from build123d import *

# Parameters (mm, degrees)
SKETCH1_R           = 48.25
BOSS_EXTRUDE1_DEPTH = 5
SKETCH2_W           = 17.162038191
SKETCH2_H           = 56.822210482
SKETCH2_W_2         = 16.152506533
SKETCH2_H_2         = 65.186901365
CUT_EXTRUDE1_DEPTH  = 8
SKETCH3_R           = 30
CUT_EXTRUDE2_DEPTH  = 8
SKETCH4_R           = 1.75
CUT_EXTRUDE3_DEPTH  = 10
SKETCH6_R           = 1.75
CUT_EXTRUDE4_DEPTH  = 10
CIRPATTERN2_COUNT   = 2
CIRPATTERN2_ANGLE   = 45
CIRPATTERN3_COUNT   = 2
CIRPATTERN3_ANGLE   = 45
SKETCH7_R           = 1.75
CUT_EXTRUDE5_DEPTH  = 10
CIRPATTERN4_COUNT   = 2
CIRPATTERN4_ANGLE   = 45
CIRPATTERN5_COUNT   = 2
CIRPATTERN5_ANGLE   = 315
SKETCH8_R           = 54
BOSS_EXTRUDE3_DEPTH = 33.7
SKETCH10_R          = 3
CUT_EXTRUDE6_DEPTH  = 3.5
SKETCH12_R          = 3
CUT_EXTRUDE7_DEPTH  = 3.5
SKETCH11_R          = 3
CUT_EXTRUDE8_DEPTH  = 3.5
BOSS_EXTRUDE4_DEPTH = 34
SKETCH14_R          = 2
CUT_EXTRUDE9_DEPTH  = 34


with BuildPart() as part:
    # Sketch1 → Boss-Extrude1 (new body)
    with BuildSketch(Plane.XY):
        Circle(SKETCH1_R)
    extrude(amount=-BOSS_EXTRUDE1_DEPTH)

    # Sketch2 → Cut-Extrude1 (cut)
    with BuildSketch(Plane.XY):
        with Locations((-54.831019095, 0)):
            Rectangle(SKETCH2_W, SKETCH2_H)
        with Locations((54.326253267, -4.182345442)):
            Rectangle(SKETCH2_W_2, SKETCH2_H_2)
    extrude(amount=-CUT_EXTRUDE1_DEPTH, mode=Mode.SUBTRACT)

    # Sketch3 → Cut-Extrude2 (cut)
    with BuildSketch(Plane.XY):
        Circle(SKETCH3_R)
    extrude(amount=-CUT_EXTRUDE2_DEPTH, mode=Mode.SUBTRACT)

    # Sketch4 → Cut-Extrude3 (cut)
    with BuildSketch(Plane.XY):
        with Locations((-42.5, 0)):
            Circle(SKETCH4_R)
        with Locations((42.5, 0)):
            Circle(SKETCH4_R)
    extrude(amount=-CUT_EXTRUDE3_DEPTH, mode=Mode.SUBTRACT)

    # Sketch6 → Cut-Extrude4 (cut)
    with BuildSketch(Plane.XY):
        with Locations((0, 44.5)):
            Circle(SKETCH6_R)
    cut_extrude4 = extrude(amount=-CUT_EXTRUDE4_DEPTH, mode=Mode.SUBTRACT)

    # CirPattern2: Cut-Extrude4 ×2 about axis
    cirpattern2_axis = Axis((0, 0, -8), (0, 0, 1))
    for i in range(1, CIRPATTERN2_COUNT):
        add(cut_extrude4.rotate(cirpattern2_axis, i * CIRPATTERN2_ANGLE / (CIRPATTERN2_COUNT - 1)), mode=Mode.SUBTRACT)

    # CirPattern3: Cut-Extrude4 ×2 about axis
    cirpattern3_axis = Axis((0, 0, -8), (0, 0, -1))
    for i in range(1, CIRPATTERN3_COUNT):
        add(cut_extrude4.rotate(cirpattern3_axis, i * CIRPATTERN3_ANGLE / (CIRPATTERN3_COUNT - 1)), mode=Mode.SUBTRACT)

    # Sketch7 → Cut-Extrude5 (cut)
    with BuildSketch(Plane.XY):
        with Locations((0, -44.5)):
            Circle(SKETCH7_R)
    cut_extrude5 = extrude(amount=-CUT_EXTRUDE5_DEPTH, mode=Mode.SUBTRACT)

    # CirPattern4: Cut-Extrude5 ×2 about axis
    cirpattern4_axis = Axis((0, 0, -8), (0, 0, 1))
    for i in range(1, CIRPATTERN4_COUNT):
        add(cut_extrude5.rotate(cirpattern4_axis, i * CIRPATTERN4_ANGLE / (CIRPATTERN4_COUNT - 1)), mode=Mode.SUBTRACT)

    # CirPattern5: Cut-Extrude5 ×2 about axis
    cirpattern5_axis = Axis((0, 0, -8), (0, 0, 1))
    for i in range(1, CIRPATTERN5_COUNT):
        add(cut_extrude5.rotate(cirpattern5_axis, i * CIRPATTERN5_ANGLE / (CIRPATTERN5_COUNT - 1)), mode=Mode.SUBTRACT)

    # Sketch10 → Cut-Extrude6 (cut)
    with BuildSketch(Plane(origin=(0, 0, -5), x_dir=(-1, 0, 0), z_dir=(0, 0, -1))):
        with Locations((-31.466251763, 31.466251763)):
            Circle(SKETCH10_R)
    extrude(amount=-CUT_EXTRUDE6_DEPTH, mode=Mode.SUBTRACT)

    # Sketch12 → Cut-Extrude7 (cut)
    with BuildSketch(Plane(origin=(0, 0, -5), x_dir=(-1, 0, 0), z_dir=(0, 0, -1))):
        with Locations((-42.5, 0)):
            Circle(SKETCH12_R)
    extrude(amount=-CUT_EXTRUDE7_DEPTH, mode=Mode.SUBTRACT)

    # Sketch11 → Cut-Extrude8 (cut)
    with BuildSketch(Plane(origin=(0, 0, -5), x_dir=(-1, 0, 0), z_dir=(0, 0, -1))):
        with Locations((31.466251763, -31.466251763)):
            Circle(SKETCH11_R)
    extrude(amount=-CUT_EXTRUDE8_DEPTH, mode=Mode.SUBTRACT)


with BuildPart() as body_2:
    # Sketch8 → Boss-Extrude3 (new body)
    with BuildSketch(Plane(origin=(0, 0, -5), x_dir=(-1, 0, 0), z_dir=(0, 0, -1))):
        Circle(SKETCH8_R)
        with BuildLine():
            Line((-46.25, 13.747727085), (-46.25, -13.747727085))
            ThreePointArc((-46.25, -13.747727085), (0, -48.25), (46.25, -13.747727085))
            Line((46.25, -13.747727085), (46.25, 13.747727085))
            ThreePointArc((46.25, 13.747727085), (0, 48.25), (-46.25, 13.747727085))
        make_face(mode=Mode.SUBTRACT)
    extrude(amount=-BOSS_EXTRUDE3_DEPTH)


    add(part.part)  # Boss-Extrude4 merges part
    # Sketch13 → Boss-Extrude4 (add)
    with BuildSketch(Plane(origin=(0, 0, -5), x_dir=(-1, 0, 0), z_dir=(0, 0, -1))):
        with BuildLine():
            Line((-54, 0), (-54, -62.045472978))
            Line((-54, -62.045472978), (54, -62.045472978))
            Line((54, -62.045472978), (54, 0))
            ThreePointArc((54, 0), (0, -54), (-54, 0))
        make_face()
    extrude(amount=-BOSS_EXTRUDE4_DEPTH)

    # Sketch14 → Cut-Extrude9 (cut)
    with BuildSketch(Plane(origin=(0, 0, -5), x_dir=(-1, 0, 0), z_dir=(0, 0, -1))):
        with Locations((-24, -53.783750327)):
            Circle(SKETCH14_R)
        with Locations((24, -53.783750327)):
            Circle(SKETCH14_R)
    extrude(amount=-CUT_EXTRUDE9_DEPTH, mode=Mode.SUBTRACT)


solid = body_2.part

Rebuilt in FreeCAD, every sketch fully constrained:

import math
import FreeCAD as App
import Part
import Sketcher
from FreeCAD import Vector
Q = App.Units.Quantity

doc = App.newDocument("Part")
body = doc.addObject("PartDesign::Body", "Body")

sketch1 = doc.addObject("Sketcher::SketchObject", "Sketch")
body.addObject(sketch1)
sketch1.AttachmentSupport = (doc.XY_Plane, [""])
sketch1.MapMode = "FlatFace"
sketch1.addGeometry(Part.Circle(Vector(0, 0, 0), Vector(0, 0, 1), 48), False)
sketch1.addConstraint(Sketcher.Constraint("Coincident", 0, 3, -1, 1))
sketch1.addConstraint(Sketcher.Constraint("Diameter", 0, Q("96.5 mm")))
pad1 = doc.addObject("PartDesign::Pad", "Pad")
body.addObject(pad1)
pad1.Profile = sketch1
pad1.Length = 5
pad1.Reversed = True

sketch2 = doc.addObject("Sketcher::SketchObject", "Sketch001")
body.addObject(sketch2)
sketch2.AttachmentSupport = (doc.XY_Plane, [""])
sketch2.MapMode = "FlatFace"
sketch2.addGeometry(Part.LineSegment(Vector(-63, 28, 0), Vector(-63, -28, 0)), False)
sketch2.addGeometry(Part.LineSegment(Vector(-63, -28, 0), Vector(-46, -28, 0)), False)
sketch2.addGeometry(Part.LineSegment(Vector(-46, -28, 0), Vector(-46, 28, 0)), False)
sketch2.addGeometry(Part.LineSegment(Vector(-46, 28, 0), Vector(-63, 28, 0)), False)
sketch2.addGeometry(Part.LineSegment(Vector(46, 28, 0), Vector(46, -37, 0)), False)
sketch2.addGeometry(Part.LineSegment(Vector(46, -37, 0), Vector(62, -37, 0)), False)
sketch2.addGeometry(Part.LineSegment(Vector(62, -37, 0), Vector(62, 28, 0)), False)
sketch2.addGeometry(Part.LineSegment(Vector(62, 28, 0), Vector(46, 28, 0)), False)
sketch2.addConstraint(Sketcher.Constraint("Coincident", 0, 2, 1, 1))
sketch2.addConstraint(Sketcher.Constraint("Coincident", 1, 2, 2, 1))
sketch2.addConstraint(Sketcher.Constraint("Coincident", 2, 2, 3, 1))
sketch2.addConstraint(Sketcher.Constraint("Coincident", 3, 2, 0, 1))
sketch2.addConstraint(Sketcher.Constraint("Coincident", 4, 2, 5, 1))
sketch2.addConstraint(Sketcher.Constraint("Coincident", 5, 2, 6, 1))
sketch2.addConstraint(Sketcher.Constraint("Coincident", 6, 2, 7, 1))
sketch2.addConstraint(Sketcher.Constraint("Coincident", 7, 2, 4, 1))
sketch2.addConstraint(Sketcher.Constraint("Vertical", 0))
sketch2.addConstraint(Sketcher.Constraint("Horizontal", 1))
sketch2.addConstraint(Sketcher.Constraint("Vertical", 2))
sketch2.addConstraint(Sketcher.Constraint("Horizontal", 3))
sketch2.addConstraint(Sketcher.Constraint("Vertical", 4))
sketch2.addConstraint(Sketcher.Constraint("Horizontal", 5))
sketch2.addConstraint(Sketcher.Constraint("Vertical", 6))
sketch2.addConstraint(Sketcher.Constraint("Horizontal", 7))
sketch2.addConstraint(Sketcher.Constraint("Symmetric", 1, 2, 7, 2, -1, 1))
sketch2.addConstraint(Sketcher.Constraint("Horizontal", 3, 2, 6, 2))
sketch2.addConstraint(Sketcher.Constraint("DistanceX", 1, 2, 4, 2, Q("92.5 mm")))
sketch2.addConstraint(Sketcher.Constraint("DistanceY", 4, 2, 4, 1, Q("65.186901 mm")))
sketch2.addConstraint(Sketcher.Constraint("DistanceX", 1, 1, 1, 2, Q("17.162038 mm")))
sketch2.addConstraint(Sketcher.Constraint("DistanceY", 0, 2, 0, 1, Q("56.82221 mm")))
sketch2.addConstraint(Sketcher.Constraint("DistanceX", 5, 1, 5, 2, Q("16.152507 mm")))
pocket1 = doc.addObject("PartDesign::Pocket", "Pocket")
body.addObject(pocket1)
pocket1.Profile = sketch2
pocket1.Length = 8

sketch3 = doc.addObject("Sketcher::SketchObject", "Sketch002")
body.addObject(sketch3)
sketch3.AttachmentSupport = (doc.XY_Plane, [""])
sketch3.MapMode = "FlatFace"
sketch3.addGeometry(Part.Circle(Vector(0, 0, 0), Vector(0, 0, 1), 30), False)
sketch3.addConstraint(Sketcher.Constraint("Coincident", 0, 3, -1, 1))
sketch3.addConstraint(Sketcher.Constraint("Diameter", 0, Q("60 mm")))
pocket2 = doc.addObject("PartDesign::Pocket", "Pocket001")
body.addObject(pocket2)
pocket2.Profile = sketch3
pocket2.Length = 8

sketch4 = doc.addObject("Sketcher::SketchObject", "Sketch003")
body.addObject(sketch4)
sketch4.AttachmentSupport = (doc.XY_Plane, [""])
sketch4.MapMode = "FlatFace"
sketch4.addGeometry(Part.Circle(Vector(-42.5, 0, 0), Vector(0, 0, 1), 1.8), False)
sketch4.addGeometry(Part.Circle(Vector(42.5, 0, 0), Vector(0, 0, 1), 1.8), False)
sketch4.addConstraint(Sketcher.Constraint("Equal", 0, 1))
sketch4.addConstraint(Sketcher.Constraint("Symmetric", 0, 3, 1, 3, -1, 1))
sketch4.addConstraint(Sketcher.Constraint("PointOnObject", 0, 3, -1))
sketch4.addConstraint(Sketcher.Constraint("Diameter", 0, Q("3.5 mm")))
sketch4.addConstraint(Sketcher.Constraint("DistanceX", 0, 3, 1, 3, Q("85 mm")))
pocket3 = doc.addObject("PartDesign::Pocket", "Pocket002")
body.addObject(pocket3)
pocket3.Profile = sketch4
pocket3.Length = 10

sketch5 = doc.addObject("Sketcher::SketchObject", "Sketch004")
body.addObject(sketch5)
sketch5.AttachmentSupport = (doc.XY_Plane, [""])
sketch5.MapMode = "FlatFace"
sketch5.addGeometry(Part.Circle(Vector(0, 44.5, 0), Vector(0, 0, 1), 1.8), False)
sketch5.addConstraint(Sketcher.Constraint("PointOnObject", 0, 3, -2))
sketch5.addConstraint(Sketcher.Constraint("Diameter", 0, Q("3.5 mm")))
sketch5.addConstraint(Sketcher.Constraint("DistanceY", -1, 1, 0, 3, Q("44.5 mm")))
pocket4 = doc.addObject("PartDesign::Pocket", "Pocket003")
body.addObject(pocket4)
pocket4.Profile = sketch5
pocket4.Length = 10
doc.recompute()

polarpattern = doc.addObject("PartDesign::PolarPattern", "PolarPattern")
body.addObject(polarpattern)
polarpattern.Originals = [pocket4]
polarpattern.Axis = (doc.Z_Axis, [""])
polarpattern.Angle = 45
polarpattern.Occurrences = 2
body.Tip = polarpattern
doc.recompute()

polarpattern2 = doc.addObject("PartDesign::PolarPattern", "PolarPattern001")
body.addObject(polarpattern2)
polarpattern2.Originals = [pocket4]
polarpattern2.Axis = (doc.Z_Axis, [""])
polarpattern2.Angle = 45
polarpattern2.Occurrences = 2
polarpattern2.Reversed = True
body.Tip = polarpattern2

sketch6 = doc.addObject("Sketcher::SketchObject", "Sketch005")
body.addObject(sketch6)
sketch6.AttachmentSupport = (doc.XY_Plane, [""])
sketch6.MapMode = "FlatFace"
sketch6.addGeometry(Part.Circle(Vector(0, -44.5, 0), Vector(0, 0, 1), 1.8), False)
sketch6.addConstraint(Sketcher.Constraint("PointOnObject", 0, 3, -2))
sketch6.addConstraint(Sketcher.Constraint("Diameter", 0, Q("3.5 mm")))
sketch6.addConstraint(Sketcher.Constraint("DistanceY", 0, 3, -1, 1, Q("44.5 mm")))
pocket5 = doc.addObject("PartDesign::Pocket", "Pocket004")
body.addObject(pocket5)
pocket5.Profile = sketch6
pocket5.Length = 10
doc.recompute()

polarpattern3 = doc.addObject("PartDesign::PolarPattern", "PolarPattern002")
body.addObject(polarpattern3)
polarpattern3.Originals = [pocket5]
polarpattern3.Axis = (doc.Z_Axis, [""])
polarpattern3.Angle = 45
polarpattern3.Occurrences = 2
body.Tip = polarpattern3
doc.recompute()

polarpattern4 = doc.addObject("PartDesign::PolarPattern", "PolarPattern003")
body.addObject(polarpattern4)
polarpattern4.Originals = [pocket5]
polarpattern4.Axis = (doc.Z_Axis, [""])
polarpattern4.Angle = 315
polarpattern4.Occurrences = 2
body.Tip = polarpattern4

sketch7 = doc.addObject("Sketcher::SketchObject", "Sketch006")
body.addObject(sketch7)
sketch7.AttachmentSupport = (doc.XY_Plane, [""])
sketch7.MapMode = "FlatFace"
sketch7.AttachmentOffset = App.Placement(Vector(0, 0, -5), App.Rotation())
sketch7.addGeometry(Part.Circle(Vector(31.5, 31.5, 0), Vector(0, 0, 1), 3), False)
sketch7.addConstraint(Sketcher.Constraint("Diameter", 0, Q("6 mm")))
sketch7.addConstraint(Sketcher.Constraint("DistanceX", -1, 1, 0, 3, Q("31.466252 mm")))
sketch7.addConstraint(Sketcher.Constraint("DistanceY", -1, 1, 0, 3, Q("31.466252 mm")))
pocket6 = doc.addObject("PartDesign::Pocket", "Pocket005")
body.addObject(pocket6)
pocket6.Profile = sketch7
pocket6.Length = 3.5
pocket6.Reversed = True

sketch8 = doc.addObject("Sketcher::SketchObject", "Sketch007")
body.addObject(sketch8)
sketch8.AttachmentSupport = (doc.XY_Plane, [""])
sketch8.MapMode = "FlatFace"
sketch8.AttachmentOffset = App.Placement(Vector(0, 0, -5), App.Rotation())
sketch8.addGeometry(Part.Circle(Vector(42.5, 0, 0), Vector(0, 0, 1), 3), False)
sketch8.addConstraint(Sketcher.Constraint("PointOnObject", 0, 3, -1))
sketch8.addConstraint(Sketcher.Constraint("Diameter", 0, Q("6 mm")))
sketch8.addConstraint(Sketcher.Constraint("DistanceX", -1, 1, 0, 3, Q("42.5 mm")))
pocket7 = doc.addObject("PartDesign::Pocket", "Pocket006")
body.addObject(pocket7)
pocket7.Profile = sketch8
pocket7.Length = 3.5
pocket7.Reversed = True

sketch9 = doc.addObject("Sketcher::SketchObject", "Sketch008")
body.addObject(sketch9)
sketch9.AttachmentSupport = (doc.XY_Plane, [""])
sketch9.MapMode = "FlatFace"
sketch9.AttachmentOffset = App.Placement(Vector(0, 0, -5), App.Rotation())
sketch9.addGeometry(Part.Circle(Vector(-31.5, -31.5, 0), Vector(0, 0, 1), 3), False)
sketch9.addConstraint(Sketcher.Constraint("Diameter", 0, Q("6 mm")))
sketch9.addConstraint(Sketcher.Constraint("DistanceX", 0, 3, -1, 1, Q("31.466252 mm")))
sketch9.addConstraint(Sketcher.Constraint("DistanceY", 0, 3, -1, 1, Q("31.466252 mm")))
pocket8 = doc.addObject("PartDesign::Pocket", "Pocket007")
body.addObject(pocket8)
pocket8.Profile = sketch9
pocket8.Length = 3.5
pocket8.Reversed = True
body2 = doc.addObject("PartDesign::Body", "Body001")

sketch10 = doc.addObject("Sketcher::SketchObject", "Sketch009")
body2.addObject(sketch10)
sketch10.AttachmentSupport = (doc.getObject("XY_Plane001"), [""])
sketch10.MapMode = "FlatFace"
sketch10.AttachmentOffset = App.Placement(Vector(0, 0, -5), App.Rotation())
sketch10.addGeometry(Part.Circle(Vector(0, 0, 0), Vector(0, 0, 1), 54), False)
sketch10.addGeometry(Part.LineSegment(Vector(46, -14, 0), Vector(46, 14, 0)), False)
sketch10.addGeometry(Part.ArcOfCircle(Part.Circle(Vector(0, 0, 0), Vector(0, 0, 1), 48), math.radians(17), math.radians(163)), False)
sketch10.addGeometry(Part.LineSegment(Vector(-46, 14, 0), Vector(-46, -14, 0)), False)
sketch10.addGeometry(Part.ArcOfCircle(Part.Circle(Vector(0, 0, 0), Vector(0, 0, 1), 48), math.radians(-163), math.radians(-17)), False)
sketch10.addConstraint(Sketcher.Constraint("Coincident", 1, 2, 2, 1))
sketch10.addConstraint(Sketcher.Constraint("Coincident", 2, 2, 3, 1))
sketch10.addConstraint(Sketcher.Constraint("Coincident", 3, 2, 4, 1))
sketch10.addConstraint(Sketcher.Constraint("Coincident", 4, 2, 1, 1))
sketch10.addConstraint(Sketcher.Constraint("Vertical", 1))
sketch10.addConstraint(Sketcher.Constraint("Vertical", 3))
sketch10.addConstraint(Sketcher.Constraint("Coincident", 0, 3, -1, 1))
sketch10.addConstraint(Sketcher.Constraint("Coincident", 2, 3, -1, 1))
sketch10.addConstraint(Sketcher.Constraint("Coincident", 4, 3, -1, 1))
sketch10.addConstraint(Sketcher.Constraint("Equal", 2, 4))
sketch10.addConstraint(Sketcher.Constraint("Horizontal", 1, 2, 2, 2))
sketch10.addConstraint(Sketcher.Constraint("Diameter", 0, Q("108 mm")))
sketch10.addConstraint(Sketcher.Constraint("Radius", 2, Q("48.25 mm")))
sketch10.addConstraint(Sketcher.Constraint("DistanceX", 2, 2, 1, 2, Q("92.5 mm")))
pad2 = doc.addObject("PartDesign::Pad", "Pad001")
body2.addObject(pad2)
pad2.Profile = sketch10
pad2.Length = 33.7
doc.recompute()

boolean = doc.addObject("PartDesign::Boolean", "Boolean")
body2.addObject(boolean)
boolean.Type = "Fuse"
boolean.addObjects([body])

sketch11 = doc.addObject("Sketcher::SketchObject", "Sketch010")
body2.addObject(sketch11)
sketch11.AttachmentSupport = (doc.getObject("XY_Plane001"), [""])
sketch11.MapMode = "FlatFace"
sketch11.AttachmentOffset = App.Placement(Vector(0, 0, -5), App.Rotation())
sketch11.addGeometry(Part.LineSegment(Vector(54, 0, 0), Vector(54, -62, 0)), False)
sketch11.addGeometry(Part.LineSegment(Vector(54, -62, 0), Vector(-54, -62, 0)), False)
sketch11.addGeometry(Part.LineSegment(Vector(-54, -62, 0), Vector(-54, 0, 0)), False)
sketch11.addGeometry(Part.ArcOfCircle(Part.Circle(Vector(0, 0, 0), Vector(0, 0, 1), 54), math.radians(180), math.radians(360)), False)
sketch11.addConstraint(Sketcher.Constraint("Coincident", 0, 2, 1, 1))
sketch11.addConstraint(Sketcher.Constraint("Coincident", 1, 2, 2, 1))
sketch11.addConstraint(Sketcher.Constraint("Tangent", 2, 2, 3, 1))
sketch11.addConstraint(Sketcher.Constraint("Tangent", 3, 2, 0, 1))
sketch11.addConstraint(Sketcher.Constraint("Vertical", 0))
sketch11.addConstraint(Sketcher.Constraint("Horizontal", 1))
sketch11.addConstraint(Sketcher.Constraint("Vertical", 2))
sketch11.addConstraint(Sketcher.Constraint("Coincident", 3, 3, -1, 1))
sketch11.addConstraint(Sketcher.Constraint("Radius", 3, Q("54 mm")))
sketch11.addConstraint(Sketcher.Constraint("DistanceY", 0, 2, 0, 1, Q("62.045473 mm")))
pad3 = doc.addObject("PartDesign::Pad", "Pad002")
body2.addObject(pad3)
pad3.Profile = sketch11
pad3.Length = 34

sketch12 = doc.addObject("Sketcher::SketchObject", "Sketch011")
body2.addObject(sketch12)
sketch12.AttachmentSupport = (doc.getObject("XY_Plane001"), [""])
sketch12.MapMode = "FlatFace"
sketch12.AttachmentOffset = App.Placement(Vector(0, 0, -5), App.Rotation())
sketch12.addGeometry(Part.Circle(Vector(24, -53.8, 0), Vector(0, 0, 1), 2), False)
sketch12.addGeometry(Part.Circle(Vector(-24, -53.8, 0), Vector(0, 0, 1), 2), False)
sketch12.addConstraint(Sketcher.Constraint("Equal", 0, 1))
sketch12.addConstraint(Sketcher.Constraint("Symmetric", 0, 3, 1, 3, -2))
sketch12.addConstraint(Sketcher.Constraint("Diameter", 0, Q("4 mm")))
sketch12.addConstraint(Sketcher.Constraint("DistanceX", -1, 1, 0, 3, Q("24 mm")))
sketch12.addConstraint(Sketcher.Constraint("DistanceY", 0, 3, -1, 1, Q("53.78375 mm")))
pocket9 = doc.addObject("PartDesign::Pocket", "Pocket008")
body2.addObject(pocket9)
pocket9.Profile = sketch12
pocket9.Length = 34
pocket9.Reversed = True

doc.recompute()
